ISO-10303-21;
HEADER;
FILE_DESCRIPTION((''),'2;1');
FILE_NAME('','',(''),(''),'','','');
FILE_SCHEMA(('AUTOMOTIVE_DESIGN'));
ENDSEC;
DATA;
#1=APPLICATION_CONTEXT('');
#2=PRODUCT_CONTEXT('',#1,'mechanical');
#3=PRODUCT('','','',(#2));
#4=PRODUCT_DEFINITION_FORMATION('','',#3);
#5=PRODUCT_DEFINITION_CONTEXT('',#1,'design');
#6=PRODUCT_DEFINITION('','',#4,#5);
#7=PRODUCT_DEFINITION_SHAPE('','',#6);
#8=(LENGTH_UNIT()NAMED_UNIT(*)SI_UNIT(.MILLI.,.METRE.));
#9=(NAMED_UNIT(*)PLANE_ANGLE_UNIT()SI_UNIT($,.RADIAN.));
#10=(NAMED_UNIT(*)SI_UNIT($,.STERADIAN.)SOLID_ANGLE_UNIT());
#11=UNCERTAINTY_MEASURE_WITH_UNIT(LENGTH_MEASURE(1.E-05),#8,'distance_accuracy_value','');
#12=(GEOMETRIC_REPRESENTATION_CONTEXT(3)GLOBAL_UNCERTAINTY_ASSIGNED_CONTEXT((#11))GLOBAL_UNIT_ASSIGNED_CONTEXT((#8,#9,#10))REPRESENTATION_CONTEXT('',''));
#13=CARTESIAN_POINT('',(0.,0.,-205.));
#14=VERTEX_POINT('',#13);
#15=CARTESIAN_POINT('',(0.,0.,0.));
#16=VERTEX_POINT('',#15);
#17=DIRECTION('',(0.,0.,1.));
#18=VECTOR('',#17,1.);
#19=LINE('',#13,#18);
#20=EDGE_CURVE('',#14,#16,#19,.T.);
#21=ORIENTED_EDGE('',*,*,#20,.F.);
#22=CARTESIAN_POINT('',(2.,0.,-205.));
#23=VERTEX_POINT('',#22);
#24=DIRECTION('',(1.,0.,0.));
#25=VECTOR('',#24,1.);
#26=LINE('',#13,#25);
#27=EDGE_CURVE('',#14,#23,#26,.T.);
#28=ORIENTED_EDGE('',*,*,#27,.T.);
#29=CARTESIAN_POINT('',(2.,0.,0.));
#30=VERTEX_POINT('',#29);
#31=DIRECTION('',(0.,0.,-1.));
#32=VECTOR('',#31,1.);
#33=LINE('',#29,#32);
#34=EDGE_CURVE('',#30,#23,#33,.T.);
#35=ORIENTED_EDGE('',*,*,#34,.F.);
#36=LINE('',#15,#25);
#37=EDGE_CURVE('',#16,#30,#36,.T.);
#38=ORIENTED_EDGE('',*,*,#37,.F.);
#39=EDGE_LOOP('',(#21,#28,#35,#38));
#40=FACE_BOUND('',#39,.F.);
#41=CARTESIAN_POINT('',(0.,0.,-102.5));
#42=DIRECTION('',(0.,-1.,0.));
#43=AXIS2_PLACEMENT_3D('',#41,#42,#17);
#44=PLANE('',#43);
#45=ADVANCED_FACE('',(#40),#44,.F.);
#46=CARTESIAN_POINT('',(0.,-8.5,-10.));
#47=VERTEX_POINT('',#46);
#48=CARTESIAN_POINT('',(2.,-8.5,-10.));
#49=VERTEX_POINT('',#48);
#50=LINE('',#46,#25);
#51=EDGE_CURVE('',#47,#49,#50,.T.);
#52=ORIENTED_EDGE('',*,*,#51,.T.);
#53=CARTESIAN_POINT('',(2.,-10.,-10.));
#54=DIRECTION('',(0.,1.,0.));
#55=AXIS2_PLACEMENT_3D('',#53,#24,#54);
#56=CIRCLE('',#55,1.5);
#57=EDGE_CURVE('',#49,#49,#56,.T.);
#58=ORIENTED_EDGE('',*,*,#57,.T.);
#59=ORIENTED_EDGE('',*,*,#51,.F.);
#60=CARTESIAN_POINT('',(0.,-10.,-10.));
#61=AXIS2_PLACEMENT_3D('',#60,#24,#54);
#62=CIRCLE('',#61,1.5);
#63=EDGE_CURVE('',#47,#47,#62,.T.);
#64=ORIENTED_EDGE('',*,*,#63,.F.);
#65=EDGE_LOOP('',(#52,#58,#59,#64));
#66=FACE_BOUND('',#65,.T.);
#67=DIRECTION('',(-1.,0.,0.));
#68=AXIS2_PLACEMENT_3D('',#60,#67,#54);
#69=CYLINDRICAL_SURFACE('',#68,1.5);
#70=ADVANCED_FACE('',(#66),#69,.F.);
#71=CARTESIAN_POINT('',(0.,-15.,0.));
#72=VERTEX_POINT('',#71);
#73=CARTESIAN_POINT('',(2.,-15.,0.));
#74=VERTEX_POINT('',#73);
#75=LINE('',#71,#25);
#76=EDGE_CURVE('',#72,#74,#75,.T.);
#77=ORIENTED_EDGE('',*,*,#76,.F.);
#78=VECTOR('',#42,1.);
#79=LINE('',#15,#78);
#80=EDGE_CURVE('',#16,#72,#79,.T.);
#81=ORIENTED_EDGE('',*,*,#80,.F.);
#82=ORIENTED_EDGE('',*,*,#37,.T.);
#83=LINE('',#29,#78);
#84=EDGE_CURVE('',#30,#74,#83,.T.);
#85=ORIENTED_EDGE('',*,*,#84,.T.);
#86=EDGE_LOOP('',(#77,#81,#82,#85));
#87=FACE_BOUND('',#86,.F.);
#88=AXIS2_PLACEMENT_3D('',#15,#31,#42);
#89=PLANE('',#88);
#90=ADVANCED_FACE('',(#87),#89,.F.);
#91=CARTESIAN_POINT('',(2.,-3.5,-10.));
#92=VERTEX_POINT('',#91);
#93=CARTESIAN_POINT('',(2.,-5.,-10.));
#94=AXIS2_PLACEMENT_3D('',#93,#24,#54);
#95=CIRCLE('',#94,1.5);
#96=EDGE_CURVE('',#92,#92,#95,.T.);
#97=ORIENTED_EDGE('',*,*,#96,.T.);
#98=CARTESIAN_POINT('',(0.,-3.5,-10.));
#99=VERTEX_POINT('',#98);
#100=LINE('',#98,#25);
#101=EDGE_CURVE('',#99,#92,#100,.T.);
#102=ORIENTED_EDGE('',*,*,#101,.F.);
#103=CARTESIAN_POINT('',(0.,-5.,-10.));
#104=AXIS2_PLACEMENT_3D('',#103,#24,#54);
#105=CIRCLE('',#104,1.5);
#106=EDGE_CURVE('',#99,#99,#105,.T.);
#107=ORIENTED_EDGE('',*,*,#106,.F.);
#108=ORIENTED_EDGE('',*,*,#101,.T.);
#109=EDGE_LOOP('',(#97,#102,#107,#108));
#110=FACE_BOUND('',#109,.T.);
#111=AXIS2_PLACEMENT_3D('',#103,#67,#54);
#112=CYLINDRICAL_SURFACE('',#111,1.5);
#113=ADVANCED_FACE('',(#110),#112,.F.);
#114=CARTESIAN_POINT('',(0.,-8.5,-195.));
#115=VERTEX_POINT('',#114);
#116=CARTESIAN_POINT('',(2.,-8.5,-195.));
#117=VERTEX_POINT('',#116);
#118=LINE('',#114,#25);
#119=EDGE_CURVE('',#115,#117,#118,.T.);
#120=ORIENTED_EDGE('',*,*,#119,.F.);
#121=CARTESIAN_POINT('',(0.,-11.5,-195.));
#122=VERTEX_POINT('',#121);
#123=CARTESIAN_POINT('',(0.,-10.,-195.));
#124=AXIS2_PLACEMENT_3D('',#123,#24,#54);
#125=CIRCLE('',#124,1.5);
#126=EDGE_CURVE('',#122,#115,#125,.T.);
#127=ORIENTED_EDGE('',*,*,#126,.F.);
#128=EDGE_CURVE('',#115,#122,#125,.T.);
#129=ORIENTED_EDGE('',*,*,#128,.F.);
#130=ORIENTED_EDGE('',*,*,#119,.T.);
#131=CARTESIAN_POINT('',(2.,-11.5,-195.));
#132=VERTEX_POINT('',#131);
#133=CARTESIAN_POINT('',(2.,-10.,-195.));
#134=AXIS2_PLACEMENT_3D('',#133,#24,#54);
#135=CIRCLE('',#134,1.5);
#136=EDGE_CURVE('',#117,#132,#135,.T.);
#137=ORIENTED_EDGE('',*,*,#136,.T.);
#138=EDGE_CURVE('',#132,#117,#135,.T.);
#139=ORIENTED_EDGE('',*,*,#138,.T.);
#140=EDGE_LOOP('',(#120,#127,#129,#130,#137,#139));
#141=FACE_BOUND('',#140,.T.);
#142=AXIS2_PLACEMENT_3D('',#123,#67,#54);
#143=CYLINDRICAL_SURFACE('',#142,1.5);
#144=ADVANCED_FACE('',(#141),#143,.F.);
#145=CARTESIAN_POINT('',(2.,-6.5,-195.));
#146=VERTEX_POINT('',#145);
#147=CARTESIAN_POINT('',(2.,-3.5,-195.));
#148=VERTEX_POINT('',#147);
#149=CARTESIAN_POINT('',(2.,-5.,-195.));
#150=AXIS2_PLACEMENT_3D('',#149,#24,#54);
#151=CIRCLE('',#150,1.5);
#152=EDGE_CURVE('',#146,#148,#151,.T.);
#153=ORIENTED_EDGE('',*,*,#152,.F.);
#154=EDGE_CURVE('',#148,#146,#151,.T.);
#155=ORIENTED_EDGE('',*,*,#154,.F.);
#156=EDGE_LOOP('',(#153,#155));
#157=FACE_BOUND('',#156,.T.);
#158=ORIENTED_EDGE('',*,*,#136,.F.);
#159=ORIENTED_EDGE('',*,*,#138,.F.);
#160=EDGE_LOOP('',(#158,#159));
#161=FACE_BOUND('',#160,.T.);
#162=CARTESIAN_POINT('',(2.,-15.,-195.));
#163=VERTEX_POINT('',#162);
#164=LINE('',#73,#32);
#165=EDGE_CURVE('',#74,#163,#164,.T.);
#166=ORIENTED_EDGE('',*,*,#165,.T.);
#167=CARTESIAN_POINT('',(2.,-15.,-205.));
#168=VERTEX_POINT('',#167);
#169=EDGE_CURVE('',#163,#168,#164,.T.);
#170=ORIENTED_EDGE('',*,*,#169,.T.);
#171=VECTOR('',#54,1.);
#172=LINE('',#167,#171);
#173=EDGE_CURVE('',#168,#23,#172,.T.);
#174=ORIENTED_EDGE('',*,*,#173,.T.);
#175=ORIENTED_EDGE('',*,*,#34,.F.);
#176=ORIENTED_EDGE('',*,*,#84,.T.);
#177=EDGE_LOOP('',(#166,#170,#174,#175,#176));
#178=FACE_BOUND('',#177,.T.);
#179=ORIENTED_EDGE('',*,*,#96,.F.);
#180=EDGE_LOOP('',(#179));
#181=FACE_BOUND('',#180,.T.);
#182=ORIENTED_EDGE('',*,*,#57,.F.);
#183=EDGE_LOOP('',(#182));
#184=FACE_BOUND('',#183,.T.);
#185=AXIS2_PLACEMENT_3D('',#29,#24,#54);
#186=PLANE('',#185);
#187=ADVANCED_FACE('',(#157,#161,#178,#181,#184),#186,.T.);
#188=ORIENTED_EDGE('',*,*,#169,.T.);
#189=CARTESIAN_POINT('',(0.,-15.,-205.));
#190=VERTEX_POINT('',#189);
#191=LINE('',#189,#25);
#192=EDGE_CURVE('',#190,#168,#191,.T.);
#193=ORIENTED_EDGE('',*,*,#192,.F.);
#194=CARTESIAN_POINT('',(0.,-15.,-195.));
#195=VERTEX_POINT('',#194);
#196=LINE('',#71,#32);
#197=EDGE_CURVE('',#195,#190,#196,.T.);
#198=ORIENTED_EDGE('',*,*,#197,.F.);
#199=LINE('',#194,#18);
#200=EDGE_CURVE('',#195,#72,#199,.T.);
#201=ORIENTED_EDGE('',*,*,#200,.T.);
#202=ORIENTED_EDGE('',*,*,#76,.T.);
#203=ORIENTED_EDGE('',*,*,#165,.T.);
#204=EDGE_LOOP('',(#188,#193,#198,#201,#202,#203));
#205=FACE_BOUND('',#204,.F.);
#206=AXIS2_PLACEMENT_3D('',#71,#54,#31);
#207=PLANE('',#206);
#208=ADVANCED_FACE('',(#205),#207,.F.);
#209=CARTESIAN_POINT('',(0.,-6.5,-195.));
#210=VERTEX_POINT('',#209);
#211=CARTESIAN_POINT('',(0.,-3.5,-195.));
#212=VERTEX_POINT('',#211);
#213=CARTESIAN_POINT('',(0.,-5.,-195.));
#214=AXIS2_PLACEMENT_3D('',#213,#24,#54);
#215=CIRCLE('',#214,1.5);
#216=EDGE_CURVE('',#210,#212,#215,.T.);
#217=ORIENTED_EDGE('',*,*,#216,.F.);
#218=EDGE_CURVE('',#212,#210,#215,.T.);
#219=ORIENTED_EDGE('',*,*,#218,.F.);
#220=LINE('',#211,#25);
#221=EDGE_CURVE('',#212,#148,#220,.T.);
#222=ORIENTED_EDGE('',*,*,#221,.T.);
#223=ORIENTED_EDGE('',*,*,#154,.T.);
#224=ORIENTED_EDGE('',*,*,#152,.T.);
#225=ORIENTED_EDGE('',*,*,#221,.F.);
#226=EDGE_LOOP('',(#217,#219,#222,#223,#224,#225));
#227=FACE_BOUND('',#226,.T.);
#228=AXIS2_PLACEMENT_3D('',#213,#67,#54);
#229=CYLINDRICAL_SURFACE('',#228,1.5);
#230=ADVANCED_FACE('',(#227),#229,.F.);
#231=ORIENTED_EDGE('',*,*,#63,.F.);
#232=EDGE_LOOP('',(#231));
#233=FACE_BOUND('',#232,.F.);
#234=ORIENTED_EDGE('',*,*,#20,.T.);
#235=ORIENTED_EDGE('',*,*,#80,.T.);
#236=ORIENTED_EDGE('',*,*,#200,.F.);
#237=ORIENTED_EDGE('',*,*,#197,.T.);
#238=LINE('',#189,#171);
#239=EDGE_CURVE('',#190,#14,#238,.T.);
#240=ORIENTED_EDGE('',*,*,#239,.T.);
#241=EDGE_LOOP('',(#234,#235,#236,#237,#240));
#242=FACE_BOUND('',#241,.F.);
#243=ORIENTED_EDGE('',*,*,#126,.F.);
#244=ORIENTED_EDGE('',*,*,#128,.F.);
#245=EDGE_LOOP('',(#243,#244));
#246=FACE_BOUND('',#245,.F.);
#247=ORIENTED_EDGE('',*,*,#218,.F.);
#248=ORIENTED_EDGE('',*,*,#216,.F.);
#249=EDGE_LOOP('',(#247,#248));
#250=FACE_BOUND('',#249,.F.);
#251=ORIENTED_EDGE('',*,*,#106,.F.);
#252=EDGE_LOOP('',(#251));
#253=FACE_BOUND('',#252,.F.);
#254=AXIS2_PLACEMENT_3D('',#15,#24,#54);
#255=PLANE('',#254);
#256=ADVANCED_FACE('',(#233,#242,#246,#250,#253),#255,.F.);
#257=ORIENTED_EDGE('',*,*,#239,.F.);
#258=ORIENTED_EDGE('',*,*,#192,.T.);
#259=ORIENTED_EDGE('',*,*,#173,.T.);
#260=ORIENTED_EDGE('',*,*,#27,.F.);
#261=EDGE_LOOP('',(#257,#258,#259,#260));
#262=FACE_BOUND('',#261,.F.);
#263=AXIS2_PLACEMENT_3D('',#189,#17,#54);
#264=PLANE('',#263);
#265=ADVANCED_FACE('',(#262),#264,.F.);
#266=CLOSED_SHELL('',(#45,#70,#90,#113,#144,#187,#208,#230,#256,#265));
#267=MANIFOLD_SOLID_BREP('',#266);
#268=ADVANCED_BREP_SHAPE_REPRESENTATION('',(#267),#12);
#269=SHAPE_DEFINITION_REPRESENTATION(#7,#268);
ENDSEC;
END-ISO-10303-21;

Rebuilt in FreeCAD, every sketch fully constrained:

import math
import FreeCAD as App
import Part
import Sketcher
Q = App.Units.Quantity

doc = App.newDocument("Part")
body = doc.addObject("PartDesign::Body", "Body")

sketch1 = body.newObject("Sketcher::SketchObject", "Sketch")
sketch1.AttachmentSupport = (doc.getObject("YZ_Plane"), [""])
sketch1.MapMode = "FlatFace"
sketch1.addGeometry(Part.LineSegment(App.Vector(0, 0, 0), App.Vector(-15, 0, 0)), False)
sketch1.addGeometry(Part.LineSegment(App.Vector(-15, 0, 0), App.Vector(-15, -195, 0)), False)
sketch1.addGeometry(Part.LineSegment(App.Vector(-15, -195, 0), App.Vector(-15, -205, 0)), False)
sketch1.addGeometry(Part.LineSegment(App.Vector(-15, -205, 0), App.Vector(0, -205, 0)), False)
sketch1.addGeometry(Part.LineSegment(App.Vector(0, -205, 0), App.Vector(0, 0, 0)), False)
sketch1.addGeometry(Part.Circle(App.Vector(-10, -10, 0), App.Vector(0, 0, 1), 1.5), False)
sketch1.addGeometry(Part.Circle(App.Vector(-5, -10, 0), App.Vector(0, 0, 1), 1.5), False)
sketch1.addGeometry(Part.ArcOfCircle(Part.Circle(App.Vector(-10, -195, 0), App.Vector(0, 0, 1), 1.5), math.radians(180), math.radians(360)), False)
sketch1.addGeometry(Part.ArcOfCircle(Part.Circle(App.Vector(-10, -195, 0), App.Vector(0, 0, 1), 1.5), math.radians(0), math.radians(180)), False)
sketch1.addGeometry(Part.Circle(App.Vector(-5, -195, 0), App.Vector(0, 0, 1), 1.5), False)
sketch1.addConstraint(Sketcher.Constraint("Coincident", 0, 2, 1, 1))
sketch1.addConstraint(Sketcher.Constraint("Coincident", 1, 2, 2, 1))
sketch1.addConstraint(Sketcher.Constraint("Coincident", 2, 2, 3, 1))
sketch1.addConstraint(Sketcher.Constraint("Coincident", 3, 2, 4, 1))
sketch1.addConstraint(Sketcher.Constraint("Coincident", 4, 2, 0, 1))
sketch1.addConstraint(Sketcher.Constraint("Tangent", 7, 1, 8, 2))
sketch1.addConstraint(Sketcher.Constraint("Coincident", 8, 1, 7, 2))
sketch1.addConstraint(Sketcher.Constraint("Horizontal", 0))
sketch1.addConstraint(Sketcher.Constraint("Vertical", 1))
sketch1.addConstraint(Sketcher.Constraint("Vertical", 2))
sketch1.addConstraint(Sketcher.Constraint("Horizontal", 3))
sketch1.addConstraint(Sketcher.Constraint("Vertical", 4))
sketch1.addConstraint(Sketcher.Constraint("Coincident", 4, 2, -1, 1))
sketch1.addConstraint(Sketcher.Constraint("Equal", 5, 6))
sketch1.addConstraint(Sketcher.Constraint("Equal", 6, 7))
sketch1.addConstraint(Sketcher.Constraint("Equal", 8, 9))
sketch1.addConstraint(Sketcher.Constraint("Horizontal", 5, 3, 6, 3))
sketch1.addConstraint(Sketcher.Constraint("Horizontal", 8, 3, 9, 3))
sketch1.addConstraint(Sketcher.Constraint("Horizontal", 9, 3, 1, 2))
sketch1.addConstraint(Sketcher.Constraint("Horizontal", 1, 2, 7, 1))
sketch1.addConstraint(Sketcher.Constraint("Horizontal", 7, 1, 8, 1))
sketch1.addConstraint(Sketcher.Constraint("Vertical", 5, 3, 7, 3))
sketch1.addConstraint(Sketcher.Constraint("Vertical", 6, 3, 9, 3))
sketch1.addConstraint(Sketcher.Constraint("Diameter", 5, Q("3 mm")))
sketch1.addConstraint(Sketcher.Constraint("DistanceX", 0, 2, 0, 1, Q("15 mm")))
sketch1.addConstraint(Sketcher.Constraint("DistanceY", 2, 2, 2, 1, Q("10 mm")))
sketch1.addConstraint(Sketcher.Constraint("DistanceY", 4, 1, 4, 2, Q("205 mm")))
sketch1.addConstraint(Sketcher.Constraint("DistanceX", 5, 3, -1, 1, Q("10 mm")))
sketch1.addConstraint(Sketcher.Constraint("DistanceY", 5, 3, -1, 1, Q("10 mm")))
sketch1.addConstraint(Sketcher.Constraint("DistanceX", 6, 3, -1, 1, Q("5 mm")))
pad1 = body.newObject("PartDesign::Pad", "Pad")
pad1.Profile = sketch1
pad1.Length = 2

doc.recompute()
